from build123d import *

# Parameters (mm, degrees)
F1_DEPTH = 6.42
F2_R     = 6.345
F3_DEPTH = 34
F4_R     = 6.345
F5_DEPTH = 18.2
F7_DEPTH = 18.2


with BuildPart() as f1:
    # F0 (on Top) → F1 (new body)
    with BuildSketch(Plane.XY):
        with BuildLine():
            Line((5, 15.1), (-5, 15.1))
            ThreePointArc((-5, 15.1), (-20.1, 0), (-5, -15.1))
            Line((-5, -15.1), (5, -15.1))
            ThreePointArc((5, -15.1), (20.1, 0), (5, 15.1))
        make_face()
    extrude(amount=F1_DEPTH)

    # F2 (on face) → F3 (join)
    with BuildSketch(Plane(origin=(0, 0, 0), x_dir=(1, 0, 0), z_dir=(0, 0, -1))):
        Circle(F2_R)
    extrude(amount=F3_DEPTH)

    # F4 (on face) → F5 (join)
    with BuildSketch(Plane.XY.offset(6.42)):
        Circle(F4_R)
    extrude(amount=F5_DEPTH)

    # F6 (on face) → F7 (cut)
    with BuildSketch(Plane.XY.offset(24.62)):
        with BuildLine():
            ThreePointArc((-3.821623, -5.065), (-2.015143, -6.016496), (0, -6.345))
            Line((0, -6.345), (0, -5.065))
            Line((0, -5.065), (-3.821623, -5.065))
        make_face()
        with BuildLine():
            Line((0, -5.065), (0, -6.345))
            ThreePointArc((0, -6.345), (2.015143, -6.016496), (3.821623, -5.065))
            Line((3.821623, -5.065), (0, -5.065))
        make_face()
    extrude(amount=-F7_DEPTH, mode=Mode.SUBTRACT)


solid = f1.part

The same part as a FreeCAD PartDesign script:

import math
import FreeCAD as App
import Part
import Sketcher
from FreeCAD import Vector

doc = App.newDocument("Part")
body = doc.addObject("PartDesign::Body", "Body")

# Sketch on XY plane
sketch1 = body.newObject("Sketcher::SketchObject", "Sketch")
sketch1.AttachmentSupport = (doc.getObject("XY_Plane"), [""])
sketch1.MapMode = "FlatFace"
sketch1.addGeometry([
    Part.LineSegment(Vector(5, 15, 0), Vector(-5, 15, 0)),
    Part.ArcOfCircle(Part.Circle(Vector(-5, 0, 0), Vector(0, 0, 1), 15), math.radians(90), math.radians(270)),
    Part.LineSegment(Vector(-5, -15, 0), Vector(5, -15, 0)),
    Part.ArcOfCircle(Part.Circle(Vector(5, 0, 0), Vector(0, 0, 1), 15), math.radians(-90), math.radians(90)),
], False)
sketch1.addConstraint([
    Sketcher.Constraint("Tangent", 0, 2, 1, 1),
    Sketcher.Constraint("Tangent", 1, 2, 2, 1),
    Sketcher.Constraint("Tangent", 2, 2, 3, 1),
    Sketcher.Constraint("Tangent", 3, 2, 0, 1),
    Sketcher.Constraint("Horizontal", 0),
    Sketcher.Constraint("Horizontal", 2),
    Sketcher.Constraint("Symmetric", 1, 3, 3, 3, -1, 1),
    Sketcher.Constraint("Radius", 1, 15.1),
    Sketcher.Constraint("DistanceX", 0, 2, 0, 1, 10.0),
])
pad1 = body.newObject("PartDesign::Pad", "Pad")
pad1.Profile = sketch1
pad1.Length = 6.42

# Sketch on XY plane
sketch2 = body.newObject("Sketcher::SketchObject", "Sketch001")
sketch2.AttachmentSupport = (doc.getObject("XY_Plane"), [""])
sketch2.MapMode = "FlatFace"
sketch2.addGeometry(Part.Circle(Vector(0, 0, 0), Vector(0, 0, 1), 6), False)
sketch2.addConstraint([
    Sketcher.Constraint("Coincident", 0, 3, -1, 1),
    Sketcher.Constraint("Diameter", 0, 12.69),
])
pad2 = body.newObject("PartDesign::Pad", "Pad001")
pad2.Profile = sketch2
pad2.Length = 34
pad2.Reversed = True

# Sketch on XY plane
sketch3 = body.newObject("Sketcher::SketchObject", "Sketch002")
sketch3.AttachmentSupport = (doc.getObject("XY_Plane"), [""])
sketch3.MapMode = "FlatFace"
sketch3.AttachmentOffset = App.Placement(Vector(0, 0, 6.42), App.Rotation())
sketch3.addGeometry(Part.Circle(Vector(0, 0, 0), Vector(0, 0, 1), 6), False)
sketch3.addConstraint([
    Sketcher.Constraint("Coincident", 0, 3, -1, 1),
    Sketcher.Constraint("Diameter", 0, 12.69),
])
pad3 = body.newObject("PartDesign::Pad", "Pad002")
pad3.Profile = sketch3
pad3.Length = 18.2

# Sketch on XY plane
sketch4 = body.newObject("Sketcher::SketchObject", "Sketch003")
sketch4.AttachmentSupport = (doc.getObject("XY_Plane"), [""])
sketch4.MapMode = "FlatFace"
sketch4.AttachmentOffset = App.Placement(Vector(0, 0, 24.62), App.Rotation())
sketch4.addGeometry([
    Part.ArcOfCircle(Part.Circle(Vector(0, 0, 0), Vector(0, 0, 1), 6.3), math.radians(-127), math.radians(-90)),
    Part.ArcOfCircle(Part.Circle(Vector(0, 0, 0), Vector(0, 0, 1), 6.3), math.radians(-90), math.radians(-53)),
    Part.LineSegment(Vector(3.8, -5.1, 0), Vector(-3.8, -5.1, 0)),
], False)
sketch4.addConstraint([
    Sketcher.Constraint("Tangent", 0, 2, 1, 1),
    Sketcher.Constraint("Coincident", 1, 2, 2, 1),
    Sketcher.Constraint("Coincident", 2, 2, 0, 1),
    Sketcher.Constraint("Horizontal", 2),
    Sketcher.Constraint("Coincident", 0, 3, -1, 1),
    Sketcher.Constraint("Equal", 0, 1),
    Sketcher.Constraint("PointOnObject", 0, 2, -2),
    Sketcher.Constraint("Radius", 0, 6.345001),
    Sketcher.Constraint("DistanceY", 0, 2, 1, 2, 1.28),
])
pocket1 = body.newObject("PartDesign::Pocket", "Pocket")
pocket1.Profile = sketch4
pocket1.Length = 18.2

doc.recompute()
